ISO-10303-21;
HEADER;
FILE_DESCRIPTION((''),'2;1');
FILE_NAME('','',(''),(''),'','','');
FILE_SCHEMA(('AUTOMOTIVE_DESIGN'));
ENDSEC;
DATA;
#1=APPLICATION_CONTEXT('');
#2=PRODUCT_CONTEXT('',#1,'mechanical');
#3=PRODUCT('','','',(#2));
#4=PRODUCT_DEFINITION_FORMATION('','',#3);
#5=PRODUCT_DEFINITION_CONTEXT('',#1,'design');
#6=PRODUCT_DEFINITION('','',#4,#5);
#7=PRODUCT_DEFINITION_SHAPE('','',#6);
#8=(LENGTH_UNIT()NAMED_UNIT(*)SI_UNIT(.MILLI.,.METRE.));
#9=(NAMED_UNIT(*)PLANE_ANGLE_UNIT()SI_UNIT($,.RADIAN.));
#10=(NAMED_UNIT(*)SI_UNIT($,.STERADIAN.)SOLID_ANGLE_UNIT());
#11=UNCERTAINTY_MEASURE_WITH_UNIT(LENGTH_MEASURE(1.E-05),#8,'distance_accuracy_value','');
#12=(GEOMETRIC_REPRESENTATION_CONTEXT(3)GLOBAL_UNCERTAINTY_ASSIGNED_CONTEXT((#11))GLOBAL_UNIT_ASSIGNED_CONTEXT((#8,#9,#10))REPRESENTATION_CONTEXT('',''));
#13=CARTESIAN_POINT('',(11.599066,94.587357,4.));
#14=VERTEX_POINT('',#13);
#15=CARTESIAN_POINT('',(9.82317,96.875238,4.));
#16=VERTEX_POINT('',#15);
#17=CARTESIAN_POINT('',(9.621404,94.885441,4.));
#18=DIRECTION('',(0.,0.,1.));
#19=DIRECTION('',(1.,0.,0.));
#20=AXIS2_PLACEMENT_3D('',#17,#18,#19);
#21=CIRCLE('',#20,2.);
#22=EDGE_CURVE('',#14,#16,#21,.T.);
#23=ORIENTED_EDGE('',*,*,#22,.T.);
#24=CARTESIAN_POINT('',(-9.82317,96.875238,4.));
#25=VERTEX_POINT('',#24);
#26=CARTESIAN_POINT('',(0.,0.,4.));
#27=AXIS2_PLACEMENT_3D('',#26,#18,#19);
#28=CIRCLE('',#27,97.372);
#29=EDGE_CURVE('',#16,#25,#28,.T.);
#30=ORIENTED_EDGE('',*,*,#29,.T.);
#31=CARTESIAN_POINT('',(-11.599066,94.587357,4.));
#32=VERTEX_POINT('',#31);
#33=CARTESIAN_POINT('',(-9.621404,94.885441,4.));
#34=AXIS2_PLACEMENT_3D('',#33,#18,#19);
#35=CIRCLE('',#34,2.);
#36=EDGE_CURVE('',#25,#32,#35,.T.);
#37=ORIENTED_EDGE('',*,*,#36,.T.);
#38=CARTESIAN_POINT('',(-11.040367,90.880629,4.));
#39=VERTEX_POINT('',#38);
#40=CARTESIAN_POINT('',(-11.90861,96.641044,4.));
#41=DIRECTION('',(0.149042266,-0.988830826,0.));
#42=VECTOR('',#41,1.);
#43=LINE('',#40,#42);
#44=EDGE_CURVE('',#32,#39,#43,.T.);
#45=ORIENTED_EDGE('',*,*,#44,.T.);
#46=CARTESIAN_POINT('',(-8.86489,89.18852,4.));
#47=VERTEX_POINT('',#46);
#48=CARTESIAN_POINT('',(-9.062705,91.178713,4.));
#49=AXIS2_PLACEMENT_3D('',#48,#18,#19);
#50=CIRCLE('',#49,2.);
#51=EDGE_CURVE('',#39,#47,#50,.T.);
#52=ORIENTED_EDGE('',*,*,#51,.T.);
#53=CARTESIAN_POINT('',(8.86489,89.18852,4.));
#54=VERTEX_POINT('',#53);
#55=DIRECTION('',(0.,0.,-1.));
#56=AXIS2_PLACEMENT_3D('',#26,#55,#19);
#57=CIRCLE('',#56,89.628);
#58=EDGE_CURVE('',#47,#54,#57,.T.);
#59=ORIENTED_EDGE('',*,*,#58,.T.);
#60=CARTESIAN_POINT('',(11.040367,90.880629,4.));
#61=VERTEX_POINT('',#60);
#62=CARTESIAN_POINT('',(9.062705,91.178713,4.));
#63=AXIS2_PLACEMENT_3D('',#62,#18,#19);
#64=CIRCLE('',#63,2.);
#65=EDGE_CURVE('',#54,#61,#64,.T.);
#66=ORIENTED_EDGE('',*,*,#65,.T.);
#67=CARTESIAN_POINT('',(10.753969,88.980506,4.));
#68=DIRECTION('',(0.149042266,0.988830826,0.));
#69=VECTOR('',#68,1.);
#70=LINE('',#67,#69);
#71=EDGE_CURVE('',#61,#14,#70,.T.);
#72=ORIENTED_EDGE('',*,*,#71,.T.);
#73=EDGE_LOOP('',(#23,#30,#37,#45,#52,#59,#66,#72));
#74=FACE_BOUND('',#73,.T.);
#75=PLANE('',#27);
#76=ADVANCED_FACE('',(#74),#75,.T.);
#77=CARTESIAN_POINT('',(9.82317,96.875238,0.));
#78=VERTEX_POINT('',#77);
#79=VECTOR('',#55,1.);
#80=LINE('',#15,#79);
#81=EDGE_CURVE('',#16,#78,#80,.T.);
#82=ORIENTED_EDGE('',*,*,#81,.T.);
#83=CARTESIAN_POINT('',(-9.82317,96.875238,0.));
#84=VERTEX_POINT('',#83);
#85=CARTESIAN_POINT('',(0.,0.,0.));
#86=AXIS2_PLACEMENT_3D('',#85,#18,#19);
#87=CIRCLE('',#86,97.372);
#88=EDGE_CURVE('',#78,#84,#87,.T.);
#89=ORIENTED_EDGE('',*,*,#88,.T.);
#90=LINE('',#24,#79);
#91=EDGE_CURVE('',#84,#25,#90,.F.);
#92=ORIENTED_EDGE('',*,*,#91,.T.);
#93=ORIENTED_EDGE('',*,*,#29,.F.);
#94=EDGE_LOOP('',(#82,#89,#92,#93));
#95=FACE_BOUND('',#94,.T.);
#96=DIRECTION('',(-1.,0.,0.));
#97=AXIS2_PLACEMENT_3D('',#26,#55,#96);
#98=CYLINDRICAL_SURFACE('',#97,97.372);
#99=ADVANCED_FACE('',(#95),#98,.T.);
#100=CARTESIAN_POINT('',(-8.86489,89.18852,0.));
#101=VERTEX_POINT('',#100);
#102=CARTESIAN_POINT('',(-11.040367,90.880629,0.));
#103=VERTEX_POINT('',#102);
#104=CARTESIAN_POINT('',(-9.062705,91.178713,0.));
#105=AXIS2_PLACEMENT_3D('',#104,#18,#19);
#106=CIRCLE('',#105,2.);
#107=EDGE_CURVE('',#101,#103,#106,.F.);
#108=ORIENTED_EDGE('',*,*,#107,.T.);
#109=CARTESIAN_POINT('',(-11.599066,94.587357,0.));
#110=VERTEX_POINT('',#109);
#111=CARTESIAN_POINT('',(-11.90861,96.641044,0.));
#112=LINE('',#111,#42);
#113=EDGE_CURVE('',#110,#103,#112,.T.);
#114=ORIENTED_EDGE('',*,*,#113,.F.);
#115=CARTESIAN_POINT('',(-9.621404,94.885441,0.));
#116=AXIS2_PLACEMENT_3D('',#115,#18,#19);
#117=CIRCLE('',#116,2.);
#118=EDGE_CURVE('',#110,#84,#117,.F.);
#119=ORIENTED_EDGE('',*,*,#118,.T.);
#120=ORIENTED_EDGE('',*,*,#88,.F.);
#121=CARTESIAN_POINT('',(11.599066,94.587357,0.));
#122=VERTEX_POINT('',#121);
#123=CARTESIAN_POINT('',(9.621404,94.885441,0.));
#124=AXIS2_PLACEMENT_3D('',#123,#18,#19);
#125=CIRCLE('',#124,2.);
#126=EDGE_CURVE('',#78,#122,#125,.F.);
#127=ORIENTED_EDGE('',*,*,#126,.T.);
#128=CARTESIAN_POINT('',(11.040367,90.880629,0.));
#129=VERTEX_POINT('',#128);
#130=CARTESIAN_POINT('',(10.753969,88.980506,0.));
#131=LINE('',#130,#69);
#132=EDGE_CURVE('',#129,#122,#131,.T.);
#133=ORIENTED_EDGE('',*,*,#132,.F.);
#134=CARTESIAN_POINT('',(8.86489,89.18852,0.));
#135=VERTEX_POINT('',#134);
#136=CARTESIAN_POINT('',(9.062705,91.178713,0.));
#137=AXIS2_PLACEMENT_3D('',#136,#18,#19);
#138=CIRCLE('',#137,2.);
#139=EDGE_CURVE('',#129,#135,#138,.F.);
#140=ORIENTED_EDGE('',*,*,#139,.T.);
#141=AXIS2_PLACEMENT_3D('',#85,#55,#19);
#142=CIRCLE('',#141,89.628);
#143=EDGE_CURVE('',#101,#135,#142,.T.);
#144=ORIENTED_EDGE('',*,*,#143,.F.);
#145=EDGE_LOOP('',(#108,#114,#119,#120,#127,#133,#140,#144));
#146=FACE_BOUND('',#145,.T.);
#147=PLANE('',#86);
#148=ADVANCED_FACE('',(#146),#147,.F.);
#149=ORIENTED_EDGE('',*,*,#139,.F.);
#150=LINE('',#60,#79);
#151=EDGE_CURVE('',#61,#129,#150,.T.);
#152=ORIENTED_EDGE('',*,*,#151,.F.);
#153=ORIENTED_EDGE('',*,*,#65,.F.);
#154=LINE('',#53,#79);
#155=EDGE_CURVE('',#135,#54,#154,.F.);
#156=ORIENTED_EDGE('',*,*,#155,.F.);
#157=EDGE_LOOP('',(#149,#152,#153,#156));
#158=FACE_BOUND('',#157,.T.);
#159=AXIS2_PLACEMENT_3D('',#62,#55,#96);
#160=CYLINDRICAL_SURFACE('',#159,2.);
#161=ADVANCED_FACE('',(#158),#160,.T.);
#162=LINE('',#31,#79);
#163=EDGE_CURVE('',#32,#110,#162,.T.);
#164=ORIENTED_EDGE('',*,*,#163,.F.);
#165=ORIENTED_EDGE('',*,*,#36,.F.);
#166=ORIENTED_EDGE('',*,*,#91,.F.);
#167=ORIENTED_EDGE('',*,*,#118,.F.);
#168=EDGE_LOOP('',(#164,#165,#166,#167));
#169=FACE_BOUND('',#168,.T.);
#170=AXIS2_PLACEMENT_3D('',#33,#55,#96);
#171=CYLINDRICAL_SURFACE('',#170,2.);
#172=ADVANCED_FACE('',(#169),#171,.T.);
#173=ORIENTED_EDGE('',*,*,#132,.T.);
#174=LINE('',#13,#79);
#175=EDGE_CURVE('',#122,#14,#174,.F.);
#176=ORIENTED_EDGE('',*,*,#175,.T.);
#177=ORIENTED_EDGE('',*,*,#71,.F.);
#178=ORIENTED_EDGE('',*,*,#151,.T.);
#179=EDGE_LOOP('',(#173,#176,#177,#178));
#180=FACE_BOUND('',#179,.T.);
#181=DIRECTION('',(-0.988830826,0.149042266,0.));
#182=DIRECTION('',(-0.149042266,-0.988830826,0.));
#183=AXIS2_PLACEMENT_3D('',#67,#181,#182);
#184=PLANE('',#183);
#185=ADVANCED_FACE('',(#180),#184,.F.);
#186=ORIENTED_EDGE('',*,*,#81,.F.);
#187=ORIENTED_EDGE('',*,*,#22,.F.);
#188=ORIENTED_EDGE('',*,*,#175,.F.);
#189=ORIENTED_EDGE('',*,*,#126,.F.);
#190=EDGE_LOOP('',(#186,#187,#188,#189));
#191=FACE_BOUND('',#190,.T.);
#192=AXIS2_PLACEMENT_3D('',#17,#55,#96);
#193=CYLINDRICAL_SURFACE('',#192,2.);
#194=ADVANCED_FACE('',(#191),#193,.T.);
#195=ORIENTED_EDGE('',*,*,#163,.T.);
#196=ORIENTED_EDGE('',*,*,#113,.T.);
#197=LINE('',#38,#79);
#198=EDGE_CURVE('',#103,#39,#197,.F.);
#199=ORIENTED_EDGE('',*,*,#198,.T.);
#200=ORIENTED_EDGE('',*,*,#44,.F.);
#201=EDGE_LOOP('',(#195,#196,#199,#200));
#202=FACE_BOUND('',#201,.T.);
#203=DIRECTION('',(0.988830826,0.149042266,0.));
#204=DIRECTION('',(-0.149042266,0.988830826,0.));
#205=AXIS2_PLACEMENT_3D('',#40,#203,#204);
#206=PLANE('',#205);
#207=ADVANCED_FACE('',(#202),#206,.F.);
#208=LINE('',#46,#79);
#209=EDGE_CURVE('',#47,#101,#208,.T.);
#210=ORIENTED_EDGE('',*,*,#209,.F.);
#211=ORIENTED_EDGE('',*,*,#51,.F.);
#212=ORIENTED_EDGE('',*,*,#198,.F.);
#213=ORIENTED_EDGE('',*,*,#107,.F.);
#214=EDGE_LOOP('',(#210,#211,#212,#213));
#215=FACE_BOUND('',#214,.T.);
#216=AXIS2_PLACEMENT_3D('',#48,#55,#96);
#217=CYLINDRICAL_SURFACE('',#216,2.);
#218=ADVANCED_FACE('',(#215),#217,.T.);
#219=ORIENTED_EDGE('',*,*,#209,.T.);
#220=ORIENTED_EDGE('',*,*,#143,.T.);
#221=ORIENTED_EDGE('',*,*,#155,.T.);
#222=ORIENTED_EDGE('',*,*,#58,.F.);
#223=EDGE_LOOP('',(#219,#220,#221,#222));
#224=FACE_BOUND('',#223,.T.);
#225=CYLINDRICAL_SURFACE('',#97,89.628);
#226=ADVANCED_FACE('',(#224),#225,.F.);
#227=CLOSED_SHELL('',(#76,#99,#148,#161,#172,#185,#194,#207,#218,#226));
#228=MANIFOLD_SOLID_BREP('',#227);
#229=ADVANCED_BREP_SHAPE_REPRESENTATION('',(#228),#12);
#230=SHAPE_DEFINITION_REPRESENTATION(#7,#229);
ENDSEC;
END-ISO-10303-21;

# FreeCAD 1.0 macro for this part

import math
import FreeCAD as App
import Part
import Sketcher

V = App.Vector


def edges_at(feature, points):
    """Names of the edges that pass closest to the given points."""
    edges = feature.Shape.Edges
    near = lambda p: min(range(len(edges)), key=lambda i: edges[i].distToShape(Part.Vertex(*p))[0])
    return sorted({f"Edge{near(p) + 1}" for p in points})

doc = App.newDocument("Part")
body = doc.addObject("PartDesign::Body", "Body")

# Sketch on XY plane
sketch1 = doc.addObject("Sketcher::SketchObject", "Sketch")
body.addObject(sketch1)
sketch1.AttachmentSupport = (doc.XY_Plane, [""])
sketch1.MapMode = "FlatFace"
sketch1.addGeometry([
    Part.LineSegment(V(-12, 97, 0), V(-11, 89, 0)),
    Part.ArcOfCircle(Part.Circle(V(0, 0, 0), V(0, 0, 1), 90), math.radians(83.11), math.radians(96.89)),
    Part.LineSegment(V(11, 89, 0), V(12, 97, 0)),
    Part.ArcOfCircle(Part.Circle(V(0, 0, 0), V(0, 0, 1), 97), math.radians(82.98), math.radians(97.02)),
], False)
sketch1.addConstraint([
    Sketcher.Constraint("Coincident", 0, 2, 1, 2),
    Sketcher.Constraint("Coincident", 1, 1, 2, 1),
    Sketcher.Constraint("Coincident", 2, 2, 3, 1),
    Sketcher.Constraint("Coincident", 3, 2, 0, 1),
    Sketcher.Constraint("Coincident", 1, 3, -1, 1),
    Sketcher.Constraint("Coincident", 3, 3, -1, 1),
    Sketcher.Constraint("Horizontal", 0, 2, 1, 1),
    Sketcher.Constraint("Horizontal", 2, 2, 3, 2),
    Sketcher.Constraint("Radius", 1, 89.628),
    Sketcher.Constraint("Radius", 3, 97.372),
    Sketcher.Constraint("DistanceX", 0, 2, -1, 1, 10.753969),
    Sketcher.Constraint("DistanceX", -1, 1, 2, 2, 11.90861),
])
pad1 = doc.addObject("PartDesign::Pad", "Pad")
body.addObject(pad1)
pad1.Profile = sketch1
pad1.Length = 4
doc.recompute()

fillet = doc.addObject("PartDesign::Fillet", "Fillet")
body.addObject(fillet)
fillet.Base = (pad1, edges_at(pad1, [
    (11.909, 96.641, 2),
    (10.754, 88.981, 2),
    (-10.754, 88.981, 2),
    (-11.909, 96.641, 2),
]))
fillet.Radius = 2

doc.recompute()
